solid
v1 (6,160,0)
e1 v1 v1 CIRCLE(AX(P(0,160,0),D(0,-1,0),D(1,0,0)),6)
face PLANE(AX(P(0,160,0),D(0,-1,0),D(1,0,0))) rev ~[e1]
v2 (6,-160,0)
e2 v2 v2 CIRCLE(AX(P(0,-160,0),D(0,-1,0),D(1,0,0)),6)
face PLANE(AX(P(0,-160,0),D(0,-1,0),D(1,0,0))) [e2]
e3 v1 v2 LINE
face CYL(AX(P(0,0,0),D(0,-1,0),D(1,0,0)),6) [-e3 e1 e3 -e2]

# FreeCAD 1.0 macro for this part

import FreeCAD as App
import Part
import Sketcher

doc = App.newDocument("Part")
body = doc.addObject("PartDesign::Body", "Body")

sketch1 = doc.addObject("Sketcher::SketchObject", "Sketch")
body.addObject(sketch1)
sketch1.AttachmentSupport = (doc.XZ_Plane, [""])
sketch1.MapMode = "FlatFace"
sketch1.addGeometry(Part.Circle(App.Vector(0, 0, 0), App.Vector(0, 0, 1), 6), False)
sketch1.addConstraint(Sketcher.Constraint("Coincident", 0, 3, -1, 1))
sketch1.addConstraint(Sketcher.Constraint("Diameter", 0, 12.0))
pad1 = doc.addObject("PartDesign::Pad", "Pad")
body.addObject(pad1)
pad1.Profile = sketch1
pad1.Length = 320
pad1.Midplane = True

doc.recompute()
